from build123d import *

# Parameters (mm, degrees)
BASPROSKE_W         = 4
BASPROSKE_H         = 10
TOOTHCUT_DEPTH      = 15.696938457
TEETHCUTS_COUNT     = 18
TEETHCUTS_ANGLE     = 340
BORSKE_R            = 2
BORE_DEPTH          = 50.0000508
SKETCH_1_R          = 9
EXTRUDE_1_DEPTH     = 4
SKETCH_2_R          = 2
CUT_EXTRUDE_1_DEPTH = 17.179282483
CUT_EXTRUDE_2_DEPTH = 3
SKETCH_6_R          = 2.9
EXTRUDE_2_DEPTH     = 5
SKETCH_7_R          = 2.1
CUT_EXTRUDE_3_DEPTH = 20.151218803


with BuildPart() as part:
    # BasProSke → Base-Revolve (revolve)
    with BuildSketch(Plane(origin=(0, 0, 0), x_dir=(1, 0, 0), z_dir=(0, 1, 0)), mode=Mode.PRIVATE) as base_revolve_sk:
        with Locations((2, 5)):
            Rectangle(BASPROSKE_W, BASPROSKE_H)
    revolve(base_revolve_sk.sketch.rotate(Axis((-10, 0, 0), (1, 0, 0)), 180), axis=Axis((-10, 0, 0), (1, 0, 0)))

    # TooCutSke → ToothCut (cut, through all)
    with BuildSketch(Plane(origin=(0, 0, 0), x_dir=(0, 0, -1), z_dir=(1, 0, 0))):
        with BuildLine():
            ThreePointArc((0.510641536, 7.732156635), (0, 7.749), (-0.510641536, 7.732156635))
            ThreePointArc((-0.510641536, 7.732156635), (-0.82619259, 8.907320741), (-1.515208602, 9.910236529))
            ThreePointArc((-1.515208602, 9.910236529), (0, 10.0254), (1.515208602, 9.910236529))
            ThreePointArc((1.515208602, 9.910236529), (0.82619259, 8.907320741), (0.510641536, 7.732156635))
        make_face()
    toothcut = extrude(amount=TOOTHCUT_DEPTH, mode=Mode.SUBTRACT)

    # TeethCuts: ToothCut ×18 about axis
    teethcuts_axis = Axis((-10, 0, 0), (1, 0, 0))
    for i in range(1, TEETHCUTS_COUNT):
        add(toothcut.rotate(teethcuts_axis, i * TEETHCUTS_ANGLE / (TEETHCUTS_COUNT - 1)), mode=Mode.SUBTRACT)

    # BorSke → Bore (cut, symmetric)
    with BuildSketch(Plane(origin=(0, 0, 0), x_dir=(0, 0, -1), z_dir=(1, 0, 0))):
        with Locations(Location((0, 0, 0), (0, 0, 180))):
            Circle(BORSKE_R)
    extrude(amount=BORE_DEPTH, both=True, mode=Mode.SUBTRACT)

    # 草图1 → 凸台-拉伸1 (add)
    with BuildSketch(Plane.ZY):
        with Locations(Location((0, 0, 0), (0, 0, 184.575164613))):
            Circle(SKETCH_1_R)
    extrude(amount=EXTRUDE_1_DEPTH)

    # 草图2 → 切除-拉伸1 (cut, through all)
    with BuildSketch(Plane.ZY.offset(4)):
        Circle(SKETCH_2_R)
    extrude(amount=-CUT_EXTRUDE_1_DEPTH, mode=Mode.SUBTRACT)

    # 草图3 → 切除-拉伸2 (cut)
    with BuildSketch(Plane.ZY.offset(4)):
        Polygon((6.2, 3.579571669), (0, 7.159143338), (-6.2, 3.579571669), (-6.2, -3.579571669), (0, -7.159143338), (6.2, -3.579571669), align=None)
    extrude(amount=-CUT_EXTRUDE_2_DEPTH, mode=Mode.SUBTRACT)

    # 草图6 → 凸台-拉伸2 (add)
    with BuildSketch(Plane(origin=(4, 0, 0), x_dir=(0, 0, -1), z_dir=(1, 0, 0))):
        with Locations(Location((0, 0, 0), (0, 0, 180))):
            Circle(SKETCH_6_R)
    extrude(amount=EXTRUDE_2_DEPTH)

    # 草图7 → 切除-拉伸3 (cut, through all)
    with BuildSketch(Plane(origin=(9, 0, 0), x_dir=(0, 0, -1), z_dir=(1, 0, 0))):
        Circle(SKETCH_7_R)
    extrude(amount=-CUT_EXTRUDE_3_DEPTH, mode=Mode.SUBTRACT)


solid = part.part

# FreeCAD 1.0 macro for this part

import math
import FreeCAD as App
import Part
import Sketcher

V = App.Vector
Q = App.Units.Quantity

doc = App.newDocument("Part")
body = doc.addObject("PartDesign::Body", "Body")

# Sketch on XZ plane
sketch1 = body.newObject("Sketcher::SketchObject", "Sketch")
sketch1.AttachmentSupport = (doc.getObject("XZ_Plane"), [""])
sketch1.MapMode = "FlatFace"
sketch1.addGeometry([
    Part.LineSegment(V(0, -10, 0), V(0, 0, 0)),
    Part.LineSegment(V(0, 0, 0), V(4, 0, 0)),
    Part.LineSegment(V(4, 0, 0), V(4, -10, 0)),
    Part.LineSegment(V(4, -10, 0), V(0, -10, 0)),
], False)
sketch1.addConstraint([
    Sketcher.Constraint("Coincident", 0, 2, 1, 1),
    Sketcher.Constraint("Coincident", 1, 2, 2, 1),
    Sketcher.Constraint("Coincident", 2, 2, 3, 1),
    Sketcher.Constraint("Coincident", 3, 2, 0, 1),
    Sketcher.Constraint("Vertical", 0),
    Sketcher.Constraint("Horizontal", 1),
    Sketcher.Constraint("Vertical", 2),
    Sketcher.Constraint("Horizontal", 3),
    Sketcher.Constraint("Coincident", 0, 2, -1, 1),
    Sketcher.Constraint("DistanceX", 1, 1, 1, 2, 4.0),
    Sketcher.Constraint("DistanceY", 0, 1, 0, 2, 10.0),
])
revolution = body.newObject("PartDesign::Revolution", "Revolution")
revolution.Profile = sketch1
revolution.ReferenceAxis = (sketch1, ["H_Axis"])
revolution.Angle = 360

# Sketch on YZ plane
sketch2 = body.newObject("Sketcher::SketchObject", "Sketch001")
sketch2.AttachmentSupport = (doc.getObject("YZ_Plane"), [""])
sketch2.MapMode = "FlatFace"
sketch2.addGeometry([
    Part.ArcOfCircle(Part.Circle(V(0, 0, 0), V(0, 0, 1), 7.7), math.radians(-3.78), math.radians(3.78)),
    Part.ArcOfCircle(Part.Circle(V(7.4, -4.1, 0), V(0, 0, 1), 3.6), math.radians(46), math.radians(85)),
    Part.ArcOfCircle(Part.Circle(V(0, 0, 0), V(0, 0, 1), 10), math.radians(-8.69), math.radians(8.69)),
    Part.ArcOfCircle(Part.Circle(V(7.4, 4.1, 0), V(0, 0, 1), 3.6), math.radians(-85), math.radians(-46)),
], False)
sketch2.addConstraint([
    Sketcher.Constraint("Coincident", 0, 1, 1, 2),
    Sketcher.Constraint("Coincident", 1, 1, 2, 1),
    Sketcher.Constraint("Coincident", 2, 2, 3, 2),
    Sketcher.Constraint("Coincident", 3, 1, 0, 2),
    Sketcher.Constraint("Coincident", 0, 3, -1, 1),
    Sketcher.Constraint("Coincident", 2, 3, -1, 1),
    Sketcher.Constraint("Equal", 1, 3),
    Sketcher.Constraint("Symmetric", 1, 3, 3, 3, -1),
    Sketcher.Constraint("Radius", 1, 3.6),
    Sketcher.Constraint("Radius", 0, 7.749),
    Sketcher.Constraint("Radius", 2, 10.0254),
    Sketcher.Constraint("DistanceX", -1, 1, 1, 3, 7.399578),
    Sketcher.Constraint("DistanceY", 0, 1, -1, 1, 0.510642),
])
pocket1 = body.newObject("PartDesign::Pocket", "Pocket")
pocket1.Profile = sketch2
pocket1.Type = "ThroughAll"
pocket1.Reversed = True
doc.recompute()

polarpattern = body.newObject("PartDesign::PolarPattern", "PolarPattern")
polarpattern.Originals = [pocket1]
polarpattern.Axis = (doc.getObject("X_Axis"), [""])
polarpattern.Angle = 360
polarpattern.Occurrences = 18
body.Tip = polarpattern

# Sketch on YZ plane
sketch3 = body.newObject("Sketcher::SketchObject", "Sketch002")
sketch3.AttachmentSupport = (doc.getObject("YZ_Plane"), [""])
sketch3.MapMode = "FlatFace"
sketch3.addGeometry(Part.Circle(V(0, 0, 0), V(0, 0, 1), 2), False)
sketch3.addConstraint([
    Sketcher.Constraint("Coincident", 0, 3, -1, 1),
    Sketcher.Constraint("Diameter", 0, 4.0),
])
pocket2 = body.newObject("PartDesign::Pocket", "Pocket001")
pocket2.Profile = sketch3
pocket2.Length = 100.000102
pocket2.Midplane = True

# Sketch on YZ plane
sketch4 = body.newObject("Sketcher::SketchObject", "Sketch003")
sketch4.AttachmentSupport = (doc.getObject("YZ_Plane"), [""])
sketch4.MapMode = "FlatFace"
sketch4.addGeometry(Part.Circle(V(0, 0, 0), V(0, 0, 1), 9), False)
sketch4.addConstraint([
    Sketcher.Constraint("Coincident", 0, 3, -1, 1),
    Sketcher.Constraint("Diameter", 0, 18.0),
])
pad1 = body.newObject("PartDesign::Pad", "Pad")
pad1.Profile = sketch4
pad1.Length = 4
pad1.Reversed = True

# Sketch on YZ plane
sketch5 = body.newObject("Sketcher::SketchObject", "Sketch004")
sketch5.AttachmentSupport = (doc.getObject("YZ_Plane"), [""])
sketch5.MapMode = "FlatFace"
sketch5.AttachmentOffset = App.Placement(V(0, 0, -4), App.Rotation())
sketch5.addGeometry(Part.Circle(V(0, 0, 0), V(0, 0, 1), 2), False)
sketch5.addConstraint([
    Sketcher.Constraint("Coincident", 0, 3, -1, 1),
    Sketcher.Constraint("Diameter", 0, 4.0),
])
pocket3 = body.newObject("PartDesign::Pocket", "Pocket002")
pocket3.Profile = sketch5
pocket3.Type = "ThroughAll"
pocket3.Reversed = True

# Sketch on YZ plane
sketch6 = body.newObject("Sketcher::SketchObject", "Sketch005")
sketch6.AttachmentSupport = (doc.getObject("YZ_Plane"), [""])
sketch6.MapMode = "FlatFace"
sketch6.AttachmentOffset = App.Placement(V(0, 0, -4), App.Rotation())
sketch6.addGeometry([
    Part.LineSegment(V(4, 6, 0), V(7, 0, 0)),  # 0
    Part.LineSegment(V(7, 0, 0), V(4, -6, 0)),  # 1
    Part.LineSegment(V(4, -6, 0), V(-4, -6, 0)),  # 2
    Part.LineSegment(V(-4, -6, 0), V(-7, 0, 0)),  # 3
    Part.LineSegment(V(-7, 0, 0), V(-4, 6, 0)),  # 4
    Part.LineSegment(V(-4, 6, 0), V(4, 6, 0)),  # 5
], False)
sketch6.addConstraint([
    Sketcher.Constraint("Coincident", 0, 2, 1, 1),
    Sketcher.Constraint("Coincident", 1, 2, 2, 1),
    Sketcher.Constraint("Coincident", 2, 2, 3, 1),
    Sketcher.Constraint("Coincident", 3, 2, 4, 1),
    Sketcher.Constraint("Coincident", 4, 2, 5, 1),
    Sketcher.Constraint("Coincident", 5, 2, 0, 1),
    Sketcher.Constraint("Horizontal", 2),
    Sketcher.Constraint("Horizontal", 5),
    Sketcher.Constraint("Symmetric", 0, 2, 3, 2, -1, 1),
    Sketcher.Constraint("Symmetric", 1, 2, 4, 2, -1, 1),
    Sketcher.Constraint("PointOnObject", 0, 2, -1),
    Sketcher.Constraint("Parallel", 0, 3),
    Sketcher.Constraint("Vertical", 2, 2, 4, 2),
    Sketcher.Constraint("Angle", 0, Q("-60 deg")),
    Sketcher.Constraint("DistanceY", 1, 2, -1, 1, 6.2),
    Sketcher.Constraint("DistanceX", 2, 2, 2, 1, 7.159143),
])
pocket4 = body.newObject("PartDesign::Pocket", "Pocket003")
pocket4.Profile = sketch6
pocket4.Length = 3
pocket4.Reversed = True

# Sketch on YZ plane
sketch7 = body.newObject("Sketcher::SketchObject", "Sketch006")
sketch7.AttachmentSupport = (doc.getObject("YZ_Plane"), [""])
sketch7.MapMode = "FlatFace"
sketch7.AttachmentOffset = App.Placement(V(0, 0, 4), App.Rotation())
sketch7.addGeometry(Part.Circle(V(0, 0, 0), V(0, 0, 1), 2.9), False)
sketch7.addConstraint([
    Sketcher.Constraint("Coincident", 0, 3, -1, 1),
    Sketcher.Constraint("Diameter", 0, 5.8),
])
pad2 = body.newObject("PartDesign::Pad", "Pad001")
pad2.Profile = sketch7
pad2.Length = 5

# Sketch on YZ plane
sketch8 = body.newObject("Sketcher::SketchObject", "Sketch007")
sketch8.AttachmentSupport = (doc.getObject("YZ_Plane"), [""])
sketch8.MapMode = "FlatFace"
sketch8.AttachmentOffset = App.Placement(V(0, 0, 9), App.Rotation())
sketch8.addGeometry(Part.Circle(V(0, 0, 0), V(0, 0, 1), 2.1), False)
sketch8.addConstraint([
    Sketcher.Constraint("Coincident", 0, 3, -1, 1),
    Sketcher.Constraint("Diameter", 0, 4.2),
])
pocket5 = body.newObject("PartDesign::Pocket", "Pocket004")
pocket5.Profile = sketch8
pocket5.Type = "ThroughAll"

doc.recompute()
